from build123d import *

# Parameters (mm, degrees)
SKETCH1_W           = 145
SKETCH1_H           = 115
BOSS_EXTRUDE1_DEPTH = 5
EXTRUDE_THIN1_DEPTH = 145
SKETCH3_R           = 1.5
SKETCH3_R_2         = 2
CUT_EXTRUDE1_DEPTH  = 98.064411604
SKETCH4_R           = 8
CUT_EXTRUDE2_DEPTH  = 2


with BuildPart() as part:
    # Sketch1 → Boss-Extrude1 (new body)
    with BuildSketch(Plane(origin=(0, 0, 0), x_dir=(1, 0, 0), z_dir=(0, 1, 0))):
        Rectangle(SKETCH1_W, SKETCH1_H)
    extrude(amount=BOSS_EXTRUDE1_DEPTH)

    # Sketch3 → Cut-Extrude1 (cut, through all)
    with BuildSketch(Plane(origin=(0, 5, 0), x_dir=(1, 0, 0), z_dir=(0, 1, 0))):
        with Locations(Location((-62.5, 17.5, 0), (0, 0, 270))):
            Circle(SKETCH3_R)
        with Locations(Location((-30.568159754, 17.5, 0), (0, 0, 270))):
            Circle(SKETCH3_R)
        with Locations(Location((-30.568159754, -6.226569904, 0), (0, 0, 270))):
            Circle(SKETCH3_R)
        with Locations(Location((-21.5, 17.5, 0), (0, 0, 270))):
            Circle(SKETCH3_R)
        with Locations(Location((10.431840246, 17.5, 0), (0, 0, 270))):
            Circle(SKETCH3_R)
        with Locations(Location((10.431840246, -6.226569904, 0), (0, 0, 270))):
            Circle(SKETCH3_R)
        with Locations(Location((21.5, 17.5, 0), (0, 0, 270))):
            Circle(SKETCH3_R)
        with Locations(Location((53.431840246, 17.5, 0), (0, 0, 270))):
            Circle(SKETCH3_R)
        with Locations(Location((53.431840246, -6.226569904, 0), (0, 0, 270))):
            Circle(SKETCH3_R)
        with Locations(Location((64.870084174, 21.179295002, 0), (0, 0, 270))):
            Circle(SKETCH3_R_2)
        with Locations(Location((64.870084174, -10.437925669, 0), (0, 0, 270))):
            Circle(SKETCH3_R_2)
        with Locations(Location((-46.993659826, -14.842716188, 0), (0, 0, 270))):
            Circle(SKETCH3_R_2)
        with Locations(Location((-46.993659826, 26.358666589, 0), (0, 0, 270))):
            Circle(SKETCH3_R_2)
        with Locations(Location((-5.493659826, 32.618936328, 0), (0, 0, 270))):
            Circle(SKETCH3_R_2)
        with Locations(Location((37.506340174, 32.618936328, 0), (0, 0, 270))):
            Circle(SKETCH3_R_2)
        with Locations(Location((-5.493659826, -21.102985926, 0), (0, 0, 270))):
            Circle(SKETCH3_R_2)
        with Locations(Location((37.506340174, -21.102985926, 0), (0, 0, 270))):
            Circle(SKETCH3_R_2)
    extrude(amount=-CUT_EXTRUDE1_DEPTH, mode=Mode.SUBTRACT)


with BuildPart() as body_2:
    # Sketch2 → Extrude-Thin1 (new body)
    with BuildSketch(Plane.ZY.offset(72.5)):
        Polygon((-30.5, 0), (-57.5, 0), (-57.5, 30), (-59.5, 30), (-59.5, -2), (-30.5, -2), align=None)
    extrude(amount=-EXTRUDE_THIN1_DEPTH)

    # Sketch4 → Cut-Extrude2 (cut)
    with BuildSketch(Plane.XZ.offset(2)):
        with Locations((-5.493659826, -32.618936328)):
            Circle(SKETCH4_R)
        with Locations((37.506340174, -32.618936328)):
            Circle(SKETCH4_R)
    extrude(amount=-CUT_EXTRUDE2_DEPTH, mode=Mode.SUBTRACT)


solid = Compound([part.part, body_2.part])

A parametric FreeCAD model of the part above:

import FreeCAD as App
import Part
import Sketcher
Q = App.Units.Quantity


def add_polygon(sketch, points):
    """Adds a closed chain of lines whose ends are joined by coincident constraints."""
    first, n = sketch.GeometryCount, len(points)
    for a, b in zip(points, points[1:] + points[:1]):
        sketch.addGeometry(Part.LineSegment(App.Vector(*a, 0), App.Vector(*b, 0)), False)
    for i in range(n):
        sketch.addConstraint(Sketcher.Constraint("Coincident", first + i, 2, first + (i + 1) % n, 1))

doc = App.newDocument("Part")
params = doc.addObject("Spreadsheet::Sheet", "Params")
for row, (alias, value) in enumerate([
    ("sketch1_width", "145 mm"),
    ("sketch1_height", "115 mm"),
    ("pad1_length", "5 mm"),
    ("sketch2_diameter", "3 mm"),
    ("sketch2_diameter2", "4 mm"),
    ("sketch3_width", "30 mm"),
    ("sketch3_width2", "32 mm"),
    ("sketch3_height", "27 mm"),
    ("pad2_length", "145 mm"),
    ("sketch4_diameter", "16 mm"),
    ("pocket2_length", "2 mm"),
], start=1):
    params.set(f"A{row}", alias)
    params.set(f"B{row}", "=" + value)
    params.setAlias(f"B{row}", alias)

body = doc.addObject("PartDesign::Body", "Body")

# Sketch on XZ plane
sketch1 = body.newObject("Sketcher::SketchObject", "Sketch")
sketch1.AttachmentSupport = (doc.getObject("XZ_Plane"), [""])
sketch1.MapMode = "FlatFace"
add_polygon(sketch1, [(-72, -58), (-72, 58), (72, 58), (72, -58)])  # lines 0-3
sketch1.addConstraint([
    Sketcher.Constraint("Vertical", 0),
    Sketcher.Constraint("Horizontal", 1),
    Sketcher.Constraint("Vertical", 2),
    Sketcher.Constraint("Horizontal", 3),
    Sketcher.Constraint("Symmetric", 0, 2, 2, 2, -1, 1),
    Sketcher.Constraint("DistanceX", 1, 1, 1, 2, Q("145 mm")),
    Sketcher.Constraint("DistanceY", 0, 1, 0, 2, Q("115 mm")),
])
sketch1.setExpression("Constraints[9]", "Params.sketch1_width")
sketch1.setExpression("Constraints[10]", "Params.sketch1_height")
pad1 = body.newObject("PartDesign::Pad", "Pad")
pad1.Profile = sketch1
pad1.setExpression("Length", "Params.pad1_length")
pad1.Reversed = True

# Sketch on XZ plane
sketch2 = body.newObject("Sketcher::SketchObject", "Sketch001")
sketch2.AttachmentSupport = (doc.getObject("XZ_Plane"), [""])
sketch2.MapMode = "FlatFace"
sketch2.AttachmentOffset = App.Placement(App.Vector(0, 0, -5), App.Rotation())
sketch2.addGeometry([
    Part.Circle(App.Vector(-62.5, -17.5, 0), App.Vector(0, 0, 1), 1.5),  # 0
    Part.Circle(App.Vector(-30.6, -17.5, 0), App.Vector(0, 0, 1), 1.5),  # 1
    Part.Circle(App.Vector(-30.6, 6.2, 0), App.Vector(0, 0, 1), 1.5),  # 2
    Part.Circle(App.Vector(-21.5, -17.5, 0), App.Vector(0, 0, 1), 1.5),  # 3
    Part.Circle(App.Vector(10.4, -17.5, 0), App.Vector(0, 0, 1), 1.5),  # 4
    Part.Circle(App.Vector(10.4, 6.2, 0), App.Vector(0, 0, 1), 1.5),  # 5
    Part.Circle(App.Vector(21.5, -17.5, 0), App.Vector(0, 0, 1), 1.5),  # 6
    Part.Circle(App.Vector(53.4, -17.5, 0), App.Vector(0, 0, 1), 1.5),  # 7
    Part.Circle(App.Vector(53.4, 6.2, 0), App.Vector(0, 0, 1), 1.5),  # 8
    Part.Circle(App.Vector(64.9, -21.2, 0), App.Vector(0, 0, 1), 2),  # 9
    Part.Circle(App.Vector(64.9, 10.4, 0), App.Vector(0, 0, 1), 2),  # 10
    Part.Circle(App.Vector(-47, 14.8, 0), App.Vector(0, 0, 1), 2),  # 11
    Part.Circle(App.Vector(-47, -26.4, 0), App.Vector(0, 0, 1), 2),  # 12
    Part.Circle(App.Vector(-5.5, -32.6, 0), App.Vector(0, 0, 1), 2),  # 13
    Part.Circle(App.Vector(37.5, -32.6, 0), App.Vector(0, 0, 1), 2),  # 14
    Part.Circle(App.Vector(-5.5, 21.1, 0), App.Vector(0, 0, 1), 2),  # 15
    Part.Circle(App.Vector(37.5, 21.1, 0), App.Vector(0, 0, 1), 2),  # 16
], False)
sketch2.addConstraint([
    Sketcher.Constraint("Equal", 0, 1),
    Sketcher.Constraint("Equal", 1, 2),
    Sketcher.Constraint("Equal", 2, 3),
    Sketcher.Constraint("Equal", 3, 4),
    Sketcher.Constraint("Equal", 4, 5),
    Sketcher.Constraint("Equal", 5, 6),
    Sketcher.Constraint("Equal", 6, 7),
    Sketcher.Constraint("Equal", 7, 8),
    Sketcher.Constraint("Equal", 9, 10),
    Sketcher.Constraint("Equal", 10, 11),
    Sketcher.Constraint("Equal", 11, 12),
    Sketcher.Constraint("Equal", 12, 13),
    Sketcher.Constraint("Equal", 13, 14),
    Sketcher.Constraint("Equal", 14, 15),
    Sketcher.Constraint("Equal", 15, 16),
    Sketcher.Constraint("Symmetric", 3, 3, 6, 3, -2),
    Sketcher.Constraint("Horizontal", 0, 3, 1, 3),
    Sketcher.Constraint("Horizontal", 1, 3, 3, 3),
    Sketcher.Constraint("Horizontal", 3, 3, 4, 3),
    Sketcher.Constraint("Horizontal", 2, 3, 5, 3),
    Sketcher.Constraint("Horizontal", 6, 3, 7, 3),
    Sketcher.Constraint("Horizontal", 5, 3, 8, 3),
    Sketcher.Constraint("Horizontal", 13, 3, 14, 3),
    Sketcher.Constraint("Horizontal", 15, 3, 16, 3),
    Sketcher.Constraint("Vertical", 1, 3, 2, 3),
    Sketcher.Constraint("Vertical", 4, 3, 5, 3),
    Sketcher.Constraint("Vertical", 7, 3, 8, 3),
    Sketcher.Constraint("Vertical", 9, 3, 10, 3),
    Sketcher.Constraint("Vertical", 11, 3, 12, 3),
    Sketcher.Constraint("Vertical", 13, 3, 15, 3),
    Sketcher.Constraint("Vertical", 14, 3, 16, 3),
    Sketcher.Constraint("Diameter", 0, Q("3 mm")),
    Sketcher.Constraint("Diameter", 9, Q("4 mm")),
    Sketcher.Constraint("DistanceX", 0, 3, 3, 3, Q("41 mm")),
    Sketcher.Constraint("DistanceX", 1, 3, 4, 3, Q("41 mm")),
    Sketcher.Constraint("DistanceX", 3, 3, 6, 3, Q("43 mm")),
    Sketcher.Constraint("DistanceX", 4, 3, 7, 3, Q("43 mm")),
    Sketcher.Constraint("DistanceY", 0, 3, -1, 1, Q("17.5 mm")),
    Sketcher.Constraint("DistanceX", 12, 3, 13, 3, Q("41.5 mm")),
    Sketcher.Constraint("DistanceX", 11, 3, 2, 3, Q("16.4255 mm")),
    Sketcher.Constraint("DistanceX", 14, 3, 7, 3, Q("15.9255 mm")),
    Sketcher.Constraint("DistanceX", 1, 3, -1, 1, Q("30.56816 mm")),
    Sketcher.Constraint("DistanceY", -1, 1, 2, 3, Q("6.22657 mm")),
    Sketcher.Constraint("DistanceY", 9, 3, 10, 3, Q("31.617221 mm")),
    Sketcher.Constraint("DistanceY", 13, 3, 12, 3, Q("6.26027 mm")),
    Sketcher.Constraint("DistanceY", 14, 3, 9, 3, Q("11.439641 mm")),
    Sketcher.Constraint("DistanceY", 11, 3, 15, 3, Q("6.26027 mm")),
    Sketcher.Constraint("DistanceY", 10, 3, 16, 3, Q("10.66506 mm")),
    Sketcher.Constraint("DistanceX", -1, 1, 9, 3, Q("64.870084 mm")),
    Sketcher.Constraint("DistanceY", 9, 3, -1, 1, Q("21.179295 mm")),
])
sketch2.setExpression("Constraints[31]", "Params.sketch2_diameter")
sketch2.setExpression("Constraints[32]", "Params.sketch2_diameter2")
pocket1 = body.newObject("PartDesign::Pocket", "Pocket")
pocket1.Profile = sketch2
pocket1.Type = "ThroughAll"
pocket1.Reversed = True
body2 = doc.addObject("PartDesign::Body", "Body001")

# Sketch on YZ plane
sketch3 = body2.newObject("Sketcher::SketchObject", "Sketch002")
sketch3.AttachmentSupport = (doc.getObject("YZ_Plane001"), [""])
sketch3.MapMode = "FlatFace"
sketch3.AttachmentOffset = App.Placement(App.Vector(0, 0, -72.5), App.Rotation())
add_polygon(sketch3, [(0, -30.5), (0, -57.5), (30, -57.5), (30, -59.5), (-2, -59.5), (-2, -30.5)])  # lines 0-5
sketch3.addConstraint([
    Sketcher.Constraint("Vertical", 0),
    Sketcher.Constraint("Horizontal", 1),
    Sketcher.Constraint("Vertical", 2),
    Sketcher.Constraint("Horizontal", 3),
    Sketcher.Constraint("Vertical", 4),
    Sketcher.Constraint("Horizontal", 5),
    Sketcher.Constraint("PointOnObject", 0, 2, -2),
    Sketcher.Constraint("Equal", 5, 2),
    Sketcher.Constraint("DistanceX", 1, 1, 1, 2, Q("30 mm")),
    Sketcher.Constraint("DistanceX", 3, 2, 3, 1, Q("32 mm")),
    Sketcher.Constraint("DistanceY", 0, 2, 0, 1, Q("27 mm")),
    Sketcher.Constraint("DistanceY", 0, 2, -1, 1, Q("57.5 mm")),
])
sketch3.setExpression("Constraints[14]", "Params.sketch3_width")
sketch3.setExpression("Constraints[15]", "Params.sketch3_width2")
sketch3.setExpression("Constraints[16]", "Params.sketch3_height")
pad2 = body2.newObject("PartDesign::Pad", "Pad001")
pad2.Profile = sketch3
pad2.setExpression("Length", "Params.pad2_length")

# Sketch on XZ plane
sketch4 = body2.newObject("Sketcher::SketchObject", "Sketch003")
sketch4.AttachmentSupport = (doc.getObject("XZ_Plane001"), [""])
sketch4.MapMode = "FlatFace"
sketch4.AttachmentOffset = App.Placement(App.Vector(0, 0, 2), App.Rotation())
sketch4.addGeometry([
    Part.Circle(App.Vector(-5, -33, 0), App.Vector(0, 0, 1), 8),
    Part.Circle(App.Vector(38, -33, 0), App.Vector(0, 0, 1), 8),
], False)
sketch4.addConstraint([
    Sketcher.Constraint("Equal", 0, 1),
    Sketcher.Constraint("Horizontal", 0, 3, 1, 3),
    Sketcher.Constraint("Diameter", 0, Q("16 mm")),
    Sketcher.Constraint("DistanceX", 0, 3, 1, 3, Q("43 mm")),
    Sketcher.Constraint("DistanceX", 0, 3, -1, 1, Q("5.49366 mm")),
    Sketcher.Constraint("DistanceY", 0, 3, -1, 1, Q("32.618936 mm")),
])
sketch4.setExpression("Constraints[2]", "Params.sketch4_diameter")
pocket2 = body2.newObject("PartDesign::Pocket", "Pocket001")
pocket2.Profile = sketch4
pocket2.setExpression("Length", "Params.pocket2_length")

doc.recompute()
